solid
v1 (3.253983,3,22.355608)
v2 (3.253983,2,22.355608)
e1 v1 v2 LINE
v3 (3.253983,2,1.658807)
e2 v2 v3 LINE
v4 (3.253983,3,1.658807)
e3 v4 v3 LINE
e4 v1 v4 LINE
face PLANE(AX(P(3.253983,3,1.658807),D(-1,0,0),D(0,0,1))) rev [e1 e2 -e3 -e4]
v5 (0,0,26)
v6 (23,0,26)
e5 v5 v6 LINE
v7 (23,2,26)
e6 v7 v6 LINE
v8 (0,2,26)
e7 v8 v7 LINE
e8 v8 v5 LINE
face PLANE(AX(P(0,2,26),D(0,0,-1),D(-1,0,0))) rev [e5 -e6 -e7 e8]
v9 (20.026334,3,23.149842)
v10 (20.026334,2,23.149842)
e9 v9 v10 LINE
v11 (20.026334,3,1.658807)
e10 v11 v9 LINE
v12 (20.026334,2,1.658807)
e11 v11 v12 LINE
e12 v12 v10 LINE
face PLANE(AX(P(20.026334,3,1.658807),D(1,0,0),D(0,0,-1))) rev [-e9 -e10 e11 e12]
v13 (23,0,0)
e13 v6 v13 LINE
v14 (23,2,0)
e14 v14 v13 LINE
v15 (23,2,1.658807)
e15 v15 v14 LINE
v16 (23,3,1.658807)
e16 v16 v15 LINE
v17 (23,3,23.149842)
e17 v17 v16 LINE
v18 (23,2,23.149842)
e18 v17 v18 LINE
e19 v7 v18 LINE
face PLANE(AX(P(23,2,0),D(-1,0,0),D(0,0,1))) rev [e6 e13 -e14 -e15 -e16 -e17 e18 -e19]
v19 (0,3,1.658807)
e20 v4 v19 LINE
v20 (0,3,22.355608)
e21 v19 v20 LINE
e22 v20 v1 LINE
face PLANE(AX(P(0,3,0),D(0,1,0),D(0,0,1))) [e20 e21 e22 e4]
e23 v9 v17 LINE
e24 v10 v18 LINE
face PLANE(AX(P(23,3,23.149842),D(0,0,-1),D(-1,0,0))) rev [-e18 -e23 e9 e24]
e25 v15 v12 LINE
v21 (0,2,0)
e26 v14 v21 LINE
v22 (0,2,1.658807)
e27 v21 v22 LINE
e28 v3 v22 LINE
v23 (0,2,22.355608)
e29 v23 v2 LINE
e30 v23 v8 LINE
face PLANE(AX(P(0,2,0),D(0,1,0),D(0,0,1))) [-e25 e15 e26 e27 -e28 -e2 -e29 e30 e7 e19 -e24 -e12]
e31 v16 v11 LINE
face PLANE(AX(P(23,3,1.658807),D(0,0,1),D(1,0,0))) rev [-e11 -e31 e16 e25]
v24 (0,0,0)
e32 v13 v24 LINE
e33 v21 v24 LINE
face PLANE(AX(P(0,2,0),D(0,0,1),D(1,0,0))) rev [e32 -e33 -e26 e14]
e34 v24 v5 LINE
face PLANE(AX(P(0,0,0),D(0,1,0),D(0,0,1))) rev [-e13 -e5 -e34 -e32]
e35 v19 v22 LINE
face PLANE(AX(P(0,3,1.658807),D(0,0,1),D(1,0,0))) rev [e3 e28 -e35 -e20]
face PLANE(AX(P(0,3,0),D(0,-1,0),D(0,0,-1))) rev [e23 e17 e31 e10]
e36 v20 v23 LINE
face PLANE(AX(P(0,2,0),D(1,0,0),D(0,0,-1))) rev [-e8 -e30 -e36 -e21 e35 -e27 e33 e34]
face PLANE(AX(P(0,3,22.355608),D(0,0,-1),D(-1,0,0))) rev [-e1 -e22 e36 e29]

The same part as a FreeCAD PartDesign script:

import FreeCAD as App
import Part
import Sketcher


def add_polygon(sketch, points):
    """Adds a closed chain of lines whose ends are joined by coincident constraints."""
    first, n = sketch.GeometryCount, len(points)
    for a, b in zip(points, points[1:] + points[:1]):
        sketch.addGeometry(Part.LineSegment(App.Vector(*a, 0), App.Vector(*b, 0)), False)
    for i in range(n):
        sketch.addConstraint(Sketcher.Constraint("Coincident", first + i, 2, first + (i + 1) % n, 1))

doc = App.newDocument("Part")
body = doc.addObject("PartDesign::Body", "Body")

# Sketch on XZ plane
sketch1 = doc.addObject("Sketcher::SketchObject", "Sketch")
body.addObject(sketch1)
sketch1.AttachmentSupport = (doc.XZ_Plane, [""])
sketch1.MapMode = "FlatFace"
add_polygon(sketch1, [(0, 0), (0, 26), (23, 26), (23, 0)])  # lines 0-3
sketch1.addConstraint([
    Sketcher.Constraint("Vertical", 0),
    Sketcher.Constraint("Horizontal", 1),
    Sketcher.Constraint("Vertical", 2),
    Sketcher.Constraint("Horizontal", 3),
    Sketcher.Constraint("Coincident", 3, 2, -1, 1),
    Sketcher.Constraint("DistanceX", 1, 1, 1, 2, 23.0),
    Sketcher.Constraint("DistanceY", 0, 1, 0, 2, 26.0),
])
pad1 = doc.addObject("PartDesign::Pad", "Pad")
body.addObject(pad1)
pad1.Profile = sketch1
pad1.Length = 2
pad1.Reversed = True

# Sketch on XZ plane
sketch2 = doc.addObject("Sketcher::SketchObject", "Sketch001")
body.addObject(sketch2)
sketch2.AttachmentSupport = (doc.XZ_Plane, [""])
sketch2.MapMode = "FlatFace"
sketch2.AttachmentOffset = App.Placement(App.Vector(0, 0, -2), App.Rotation())
add_polygon(sketch2, [(0, 1.7), (0, 22.4), (3.3, 22.4), (3.3, 1.7)])  # lines 0-3
add_polygon(sketch2, [(20, 1.7), (20, 23.1), (23, 23.1), (23, 1.7)])  # lines 4-7
sketch2.addConstraint([
    Sketcher.Constraint("Vertical", 0),
    Sketcher.Constraint("Horizontal", 1),
    Sketcher.Constraint("Vertical", 2),
    Sketcher.Constraint("Horizontal", 3),
    Sketcher.Constraint("Vertical", 4),
    Sketcher.Constraint("Horizontal", 5),
    Sketcher.Constraint("Vertical", 6),
    Sketcher.Constraint("Horizontal", 7),
    Sketcher.Constraint("PointOnObject", 0, 2, -2),
    Sketcher.Constraint("Horizontal", 3, 2, 6, 2),
    Sketcher.Constraint("DistanceX", -1, 1, 5, 2, 23.0),
    Sketcher.Constraint("DistanceY", 0, 1, 0, 2, 20.696801),
    Sketcher.Constraint("DistanceX", 1, 1, 1, 2, 3.253983),
    Sketcher.Constraint("DistanceX", 5, 1, 5, 2, 2.973666),
    Sketcher.Constraint("DistanceY", 4, 1, 4, 2, 21.491035),
    Sketcher.Constraint("DistanceY", -1, 1, 4, 2, 23.149842),
])
pad2 = doc.addObject("PartDesign::Pad", "Pad001")
body.addObject(pad2)
pad2.Profile = sketch2
pad2.Length = 1
pad2.Reversed = True

doc.recompute()
